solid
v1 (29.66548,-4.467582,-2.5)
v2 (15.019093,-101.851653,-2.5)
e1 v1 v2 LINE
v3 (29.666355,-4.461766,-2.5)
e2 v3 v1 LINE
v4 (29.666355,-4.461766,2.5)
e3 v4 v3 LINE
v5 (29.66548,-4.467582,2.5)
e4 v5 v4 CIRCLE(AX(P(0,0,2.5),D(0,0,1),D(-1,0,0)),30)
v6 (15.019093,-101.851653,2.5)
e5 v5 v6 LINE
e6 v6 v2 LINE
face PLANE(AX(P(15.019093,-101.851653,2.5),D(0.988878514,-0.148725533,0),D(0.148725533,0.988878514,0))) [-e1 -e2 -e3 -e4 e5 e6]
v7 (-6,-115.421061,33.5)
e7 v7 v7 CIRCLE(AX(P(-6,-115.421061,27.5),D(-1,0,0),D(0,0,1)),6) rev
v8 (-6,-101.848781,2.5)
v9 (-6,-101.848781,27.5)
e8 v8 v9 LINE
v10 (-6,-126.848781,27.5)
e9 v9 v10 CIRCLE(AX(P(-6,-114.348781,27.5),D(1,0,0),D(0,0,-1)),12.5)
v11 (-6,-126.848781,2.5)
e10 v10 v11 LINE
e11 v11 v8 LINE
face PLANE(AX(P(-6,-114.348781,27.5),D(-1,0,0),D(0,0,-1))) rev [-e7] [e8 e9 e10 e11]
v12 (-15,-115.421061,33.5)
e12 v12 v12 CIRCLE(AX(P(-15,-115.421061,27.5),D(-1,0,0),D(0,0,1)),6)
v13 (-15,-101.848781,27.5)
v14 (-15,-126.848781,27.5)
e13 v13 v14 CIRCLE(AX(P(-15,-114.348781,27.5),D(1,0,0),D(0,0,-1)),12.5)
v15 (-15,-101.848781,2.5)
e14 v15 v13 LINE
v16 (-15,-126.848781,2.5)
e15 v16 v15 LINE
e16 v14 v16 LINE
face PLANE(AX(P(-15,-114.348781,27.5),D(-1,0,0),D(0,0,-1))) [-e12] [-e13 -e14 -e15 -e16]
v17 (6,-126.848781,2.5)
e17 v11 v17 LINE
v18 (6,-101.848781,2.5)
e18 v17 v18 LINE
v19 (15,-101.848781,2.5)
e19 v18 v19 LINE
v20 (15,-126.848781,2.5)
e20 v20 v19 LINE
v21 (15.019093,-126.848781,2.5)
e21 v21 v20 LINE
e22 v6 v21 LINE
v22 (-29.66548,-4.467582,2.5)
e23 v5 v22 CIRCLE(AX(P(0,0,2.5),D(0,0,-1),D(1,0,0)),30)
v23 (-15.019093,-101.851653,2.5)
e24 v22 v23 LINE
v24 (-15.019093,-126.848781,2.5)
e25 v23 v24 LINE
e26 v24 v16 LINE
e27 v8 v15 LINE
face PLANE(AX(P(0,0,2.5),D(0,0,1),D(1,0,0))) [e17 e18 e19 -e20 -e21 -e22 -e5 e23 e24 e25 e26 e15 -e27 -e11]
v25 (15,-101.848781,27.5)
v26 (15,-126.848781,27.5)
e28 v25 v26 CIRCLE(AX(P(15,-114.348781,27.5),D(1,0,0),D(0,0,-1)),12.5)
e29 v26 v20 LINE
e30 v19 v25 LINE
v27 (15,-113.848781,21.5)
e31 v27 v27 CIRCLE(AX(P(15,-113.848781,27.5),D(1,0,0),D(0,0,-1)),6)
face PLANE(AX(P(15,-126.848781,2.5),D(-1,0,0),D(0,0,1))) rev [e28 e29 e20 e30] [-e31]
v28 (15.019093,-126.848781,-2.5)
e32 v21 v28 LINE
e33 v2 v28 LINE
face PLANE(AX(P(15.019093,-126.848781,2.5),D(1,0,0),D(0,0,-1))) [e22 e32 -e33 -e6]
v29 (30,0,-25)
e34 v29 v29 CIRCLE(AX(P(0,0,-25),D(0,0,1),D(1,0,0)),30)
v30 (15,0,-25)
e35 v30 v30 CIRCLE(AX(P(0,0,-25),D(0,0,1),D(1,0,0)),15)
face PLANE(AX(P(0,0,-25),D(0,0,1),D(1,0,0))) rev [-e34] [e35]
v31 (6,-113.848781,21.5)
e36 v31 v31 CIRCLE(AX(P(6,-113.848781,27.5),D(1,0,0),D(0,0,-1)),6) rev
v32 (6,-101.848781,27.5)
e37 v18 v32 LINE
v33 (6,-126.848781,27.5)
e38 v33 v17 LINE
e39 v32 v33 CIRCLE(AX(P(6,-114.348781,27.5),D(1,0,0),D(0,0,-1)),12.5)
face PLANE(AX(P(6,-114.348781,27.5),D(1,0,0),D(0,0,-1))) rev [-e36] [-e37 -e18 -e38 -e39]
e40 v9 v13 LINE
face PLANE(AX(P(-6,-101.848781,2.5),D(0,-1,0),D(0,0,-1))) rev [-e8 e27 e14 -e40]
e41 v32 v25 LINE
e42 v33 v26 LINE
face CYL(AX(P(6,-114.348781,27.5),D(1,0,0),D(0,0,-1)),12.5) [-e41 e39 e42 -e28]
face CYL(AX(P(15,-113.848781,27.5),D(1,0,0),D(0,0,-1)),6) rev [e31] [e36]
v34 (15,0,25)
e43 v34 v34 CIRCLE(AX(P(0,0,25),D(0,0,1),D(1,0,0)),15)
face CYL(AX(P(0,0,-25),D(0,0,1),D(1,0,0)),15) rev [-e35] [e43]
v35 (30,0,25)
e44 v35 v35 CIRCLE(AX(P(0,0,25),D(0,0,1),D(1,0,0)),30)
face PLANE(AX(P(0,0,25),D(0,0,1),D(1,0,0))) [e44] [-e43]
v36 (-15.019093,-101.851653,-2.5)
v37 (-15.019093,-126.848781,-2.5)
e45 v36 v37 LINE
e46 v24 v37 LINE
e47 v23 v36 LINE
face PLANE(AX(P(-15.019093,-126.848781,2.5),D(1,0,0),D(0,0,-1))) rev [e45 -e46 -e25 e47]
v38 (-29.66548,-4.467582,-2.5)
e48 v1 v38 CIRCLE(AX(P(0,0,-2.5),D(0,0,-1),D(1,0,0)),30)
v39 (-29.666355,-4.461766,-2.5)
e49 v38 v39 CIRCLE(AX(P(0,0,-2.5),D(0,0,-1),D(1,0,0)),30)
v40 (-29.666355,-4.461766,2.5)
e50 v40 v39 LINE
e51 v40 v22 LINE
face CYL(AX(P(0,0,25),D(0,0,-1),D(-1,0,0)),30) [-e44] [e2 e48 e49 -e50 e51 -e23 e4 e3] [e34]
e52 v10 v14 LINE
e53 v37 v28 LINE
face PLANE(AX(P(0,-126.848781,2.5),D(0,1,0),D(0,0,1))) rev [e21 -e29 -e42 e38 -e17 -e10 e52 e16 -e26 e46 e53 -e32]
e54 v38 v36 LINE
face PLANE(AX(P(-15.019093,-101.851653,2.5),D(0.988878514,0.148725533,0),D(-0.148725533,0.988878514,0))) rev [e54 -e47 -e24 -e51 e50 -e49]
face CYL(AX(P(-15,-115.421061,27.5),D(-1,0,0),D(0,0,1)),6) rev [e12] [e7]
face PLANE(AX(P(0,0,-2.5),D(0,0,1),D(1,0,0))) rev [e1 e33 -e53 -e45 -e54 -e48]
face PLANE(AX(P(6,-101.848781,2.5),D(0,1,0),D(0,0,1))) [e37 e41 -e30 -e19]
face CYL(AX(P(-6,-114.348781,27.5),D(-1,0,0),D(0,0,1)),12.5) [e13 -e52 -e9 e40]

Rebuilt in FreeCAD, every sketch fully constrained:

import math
import FreeCAD as App
import Part
import Sketcher
from FreeCAD import Vector

doc = App.newDocument("Part")
body = doc.addObject("PartDesign::Body", "Body")

sketch1 = body.newObject("Sketcher::SketchObject", "Sketch")
sketch1.AttachmentSupport = (doc.getObject("XY_Plane"), [""])
sketch1.MapMode = "FlatFace"
sketch1.addGeometry(Part.Circle(Vector(0, 0, 0), Vector(0, 0, 1), 30), False)
sketch1.addConstraint([
    Sketcher.Constraint("Coincident", 0, 3, -1, 1),
    Sketcher.Constraint("Diameter", 0, 60.0),
])
pad1 = body.newObject("PartDesign::Pad", "Pad")
pad1.Profile = sketch1
pad1.Length = 50
pad1.Midplane = True

sketch2 = body.newObject("Sketcher::SketchObject", "Sketch001")
sketch2.AttachmentSupport = (doc.getObject("XY_Plane"), [""])
sketch2.MapMode = "FlatFace"
sketch2.AttachmentOffset = App.Placement(Vector(0, 0, 25), App.Rotation())
sketch2.addGeometry(Part.Circle(Vector(0, 0, 0), Vector(0, 0, 1), 15), False)
sketch2.addConstraint([
    Sketcher.Constraint("Coincident", 0, 3, -1, 1),
    Sketcher.Constraint("Diameter", 0, 30.0),
])
pocket1 = body.newObject("PartDesign::Pocket", "Pocket")
pocket1.Profile = sketch2
pocket1.Length = 50

sketch3 = body.newObject("Sketcher::SketchObject", "Sketch002")
sketch3.AttachmentSupport = (doc.getObject("XY_Plane"), [""])
sketch3.MapMode = "FlatFace"
sketch3.addGeometry([
    Part.LineSegment(Vector(15, -126.848781, 0), Vector(15, -101.848781, 0)),
    Part.LineSegment(Vector(15, -101.848781, 0), Vector(29.66548, -4.467582, 0)),
    Part.ArcOfCircle(Part.Circle(Vector(0, 0, 0), Vector(0, 0, 1), 30), math.radians(-171.446923), math.radians(-8.56431)),
    Part.LineSegment(Vector(-29.666355, -4.461766, 0), Vector(-15.019093, -101.851653, 0)),
    Part.LineSegment(Vector(-15.019093, -101.851653, 0), Vector(-15.019093, -126.848781, 0)),
    Part.LineSegment(Vector(-15.019093, -126.848781, 0), Vector(15, -126.848781, 0)),
], False)
sketch3.addConstraint([
    Sketcher.Constraint("Coincident", 0, 2, 1, 1),
    Sketcher.Constraint("Tangent", 1, 2, 2, 2),
    Sketcher.Constraint("Tangent", 2, 1, 3, 1),
    Sketcher.Constraint("Coincident", 3, 2, 4, 1),
    Sketcher.Constraint("Coincident", 4, 2, 5, 1),
    Sketcher.Constraint("Coincident", 5, 2, 0, 1),
    Sketcher.Constraint("Vertical", 0),
    Sketcher.Constraint("Vertical", 4),
    Sketcher.Constraint("Horizontal", 5),
    Sketcher.Constraint("Coincident", 2, 3, -1, 1),
    Sketcher.Constraint("Radius", 2, 30.0),
    Sketcher.Constraint("DistanceY", 0, 1, 0, 2, 25.0),
    Sketcher.Constraint("DistanceX", -1, 1, 0, 2, 15.0),
    Sketcher.Constraint("DistanceY", 4, 2, 4, 1, 24.997128),
    Sketcher.Constraint("DistanceY", 0, 2, 1, 2, 97.381199),
    Sketcher.Constraint("Distance", 3, 98.485189),
])
pad2 = body.newObject("PartDesign::Pad", "Pad001")
pad2.Profile = sketch3
pad2.Length = 5
pad2.Midplane = True

sketch4 = body.newObject("Sketcher::SketchObject", "Sketch003")
sketch4.AttachmentSupport = (doc.getObject("YZ_Plane"), [""])
sketch4.MapMode = "FlatFace"
sketch4.AttachmentOffset = App.Placement(Vector(0, 0, 15), App.Rotation())
sketch4.addGeometry([
    Part.LineSegment(Vector(-101.848781, 2.5, 0), Vector(-101.848781, 27.5, 0)),
    Part.ArcOfCircle(Part.Circle(Vector(-114.348781, 27.5, 0), Vector(0, 0, 1), 12.5), math.radians(0), math.radians(180)),
    Part.LineSegment(Vector(-126.848781, 27.5, 0), Vector(-126.848781, 2.5, 0)),
    Part.LineSegment(Vector(-126.848781, 2.5, 0), Vector(-101.848781, 2.5, 0)),
], False)
sketch4.addConstraint([
    Sketcher.Constraint("Tangent", 0, 2, 1, 1),
    Sketcher.Constraint("Tangent", 1, 2, 2, 1),
    Sketcher.Constraint("Coincident", 2, 2, 3, 1),
    Sketcher.Constraint("Coincident", 3, 2, 0, 1),
    Sketcher.Constraint("Vertical", 0),
    Sketcher.Constraint("Vertical", 2),
    Sketcher.Constraint("Horizontal", 3),
    Sketcher.Constraint("Equal", 3, 0),
    Sketcher.Constraint("Radius", 1, 12.5),
    Sketcher.Constraint("DistanceY", -1, 1, 1, 3, 27.5),
    Sketcher.Constraint("DistanceX", 1, 3, -1, 1, 114.348781),
])
pad3 = body.newObject("PartDesign::Pad", "Pad002")
pad3.Profile = sketch4
pad3.Length = 9
pad3.Reversed = True

sketch5 = body.newObject("Sketcher::SketchObject", "Sketch004")
sketch5.AttachmentSupport = (doc.getObject("YZ_Plane"), [""])
sketch5.MapMode = "FlatFace"
sketch5.AttachmentOffset = App.Placement(Vector(0, 0, 15), App.Rotation())
sketch5.addGeometry(Part.Circle(Vector(-113.848781, 27.5, 0), Vector(0, 0, 1), 6), False)
sketch5.addConstraint([
    Sketcher.Constraint("Diameter", 0, 12.0),
    Sketcher.Constraint("DistanceY", -1, 1, 0, 3, 27.5),
    Sketcher.Constraint("DistanceX", 0, 3, -1, 1, 113.848781),
])
doc.recompute()
hole = body.newObject("PartDesign::Hole", "Hole")
hole.Profile = sketch5
hole.ThreadType = "None"
hole.Diameter = 12
hole.DepthType = "ThroughAll"
doc.recompute()

mirrored = body.newObject("PartDesign::Mirrored", "Mirrored")
mirrored.Originals = [pad2, pad3]
mirrored.MirrorPlane = (doc.getObject("YZ_Plane"), [""])
body.Tip = mirrored

sketch6 = body.newObject("Sketcher::SketchObject", "Sketch005")
sketch6.AttachmentSupport = (doc.getObject("YZ_Plane"), [""])
sketch6.MapMode = "FlatFace"
sketch6.AttachmentOffset = App.Placement(Vector(0, 0, -15), App.Rotation())
sketch6.addGeometry(Part.Circle(Vector(-115.421061, 27.5, 0), Vector(0, 0, 1), 6), False)
sketch6.addConstraint([
    Sketcher.Constraint("Diameter", 0, 12.0),
    Sketcher.Constraint("DistanceY", -1, 1, 0, 3, 27.5),
    Sketcher.Constraint("DistanceX", 0, 3, -1, 1, 115.421061),
])
pocket2 = body.newObject("PartDesign::Pocket", "Pocket001")
pocket2.Profile = sketch6
pocket2.Type = "UpToFirst"
pocket2.Reversed = True

doc.recompute()
